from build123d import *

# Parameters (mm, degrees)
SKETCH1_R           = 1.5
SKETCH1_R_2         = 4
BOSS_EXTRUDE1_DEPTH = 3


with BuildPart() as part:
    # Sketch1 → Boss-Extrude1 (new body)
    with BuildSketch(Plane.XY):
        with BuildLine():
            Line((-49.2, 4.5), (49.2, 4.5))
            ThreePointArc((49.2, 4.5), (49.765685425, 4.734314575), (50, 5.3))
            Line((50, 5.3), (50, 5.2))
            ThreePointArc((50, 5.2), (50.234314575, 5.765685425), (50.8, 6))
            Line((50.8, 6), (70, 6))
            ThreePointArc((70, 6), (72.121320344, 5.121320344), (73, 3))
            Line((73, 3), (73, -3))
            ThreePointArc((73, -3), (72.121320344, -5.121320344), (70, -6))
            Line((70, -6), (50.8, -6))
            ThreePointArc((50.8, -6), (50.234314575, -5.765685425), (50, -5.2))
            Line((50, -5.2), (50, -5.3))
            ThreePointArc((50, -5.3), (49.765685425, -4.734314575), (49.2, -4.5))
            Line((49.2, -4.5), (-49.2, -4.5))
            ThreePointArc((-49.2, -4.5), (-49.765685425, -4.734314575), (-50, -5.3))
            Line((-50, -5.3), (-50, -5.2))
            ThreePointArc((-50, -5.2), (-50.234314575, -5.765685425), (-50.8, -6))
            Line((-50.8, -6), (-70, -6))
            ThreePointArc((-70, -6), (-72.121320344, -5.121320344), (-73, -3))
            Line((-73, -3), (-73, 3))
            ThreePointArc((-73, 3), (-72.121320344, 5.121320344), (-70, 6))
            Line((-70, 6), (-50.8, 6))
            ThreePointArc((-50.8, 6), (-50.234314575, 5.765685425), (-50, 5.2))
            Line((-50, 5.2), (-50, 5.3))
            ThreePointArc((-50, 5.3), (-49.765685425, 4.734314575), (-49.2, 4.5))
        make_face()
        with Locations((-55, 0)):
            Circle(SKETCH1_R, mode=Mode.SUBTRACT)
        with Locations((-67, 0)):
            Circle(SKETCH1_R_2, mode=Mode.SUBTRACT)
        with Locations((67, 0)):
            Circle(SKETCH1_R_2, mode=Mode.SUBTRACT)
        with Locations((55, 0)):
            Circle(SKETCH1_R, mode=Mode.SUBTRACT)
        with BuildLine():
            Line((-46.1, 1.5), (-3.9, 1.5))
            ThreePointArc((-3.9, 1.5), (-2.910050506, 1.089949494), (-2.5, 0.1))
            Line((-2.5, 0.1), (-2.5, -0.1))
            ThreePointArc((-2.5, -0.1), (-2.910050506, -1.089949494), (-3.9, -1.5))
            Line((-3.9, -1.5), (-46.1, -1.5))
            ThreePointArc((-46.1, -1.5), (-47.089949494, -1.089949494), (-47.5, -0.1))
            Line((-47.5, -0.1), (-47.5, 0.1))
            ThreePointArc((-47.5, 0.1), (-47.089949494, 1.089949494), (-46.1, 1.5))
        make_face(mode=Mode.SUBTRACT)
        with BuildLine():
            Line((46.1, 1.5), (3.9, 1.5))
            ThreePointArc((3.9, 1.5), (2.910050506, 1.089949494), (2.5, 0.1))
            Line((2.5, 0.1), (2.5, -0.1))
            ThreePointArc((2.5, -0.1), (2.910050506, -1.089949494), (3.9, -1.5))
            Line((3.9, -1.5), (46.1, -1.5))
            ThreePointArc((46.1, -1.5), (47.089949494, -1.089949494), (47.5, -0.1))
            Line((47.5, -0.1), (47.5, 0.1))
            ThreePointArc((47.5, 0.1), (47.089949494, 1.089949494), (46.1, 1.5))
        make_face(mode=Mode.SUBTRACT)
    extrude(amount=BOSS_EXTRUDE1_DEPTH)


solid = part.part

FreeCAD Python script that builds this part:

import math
import FreeCAD as App
import Part
import Sketcher

doc = App.newDocument("Part")
body = doc.addObject("PartDesign::Body", "Body")

# Sketch on XY plane
sketch1 = body.newObject("Sketcher::SketchObject", "Sketch")
sketch1.AttachmentSupport = (doc.getObject("XY_Plane"), [""])
sketch1.MapMode = "FlatFace"
sketch1.addGeometry(Part.LineSegment(App.Vector(49.2, 4.5, 0), App.Vector(-49.2, 4.5, 0)), False)
sketch1.addGeometry(Part.ArcOfCircle(Part.Circle(App.Vector(-49.2, 5.3, 0), App.Vector(0, 0, 1), 0.8), math.radians(180), math.radians(270)), False)
sketch1.addGeometry(Part.LineSegment(App.Vector(-50, 5.3, 0), App.Vector(-50, 5.2, 0)), False)
sketch1.addGeometry(Part.ArcOfCircle(Part.Circle(App.Vector(-50.8, 5.2, 0), App.Vector(0, 0, 1), 0.8), math.radians(0), math.radians(90)), False)
sketch1.addGeometry(Part.LineSegment(App.Vector(-50.8, 6, 0), App.Vector(-70, 6, 0)), False)
sketch1.addGeometry(Part.ArcOfCircle(Part.Circle(App.Vector(-70, 3, 0), App.Vector(0, 0, 1), 3), math.radians(90), math.radians(180)), False)
sketch1.addGeometry(Part.LineSegment(App.Vector(-73, 3, 0), App.Vector(-73, -3, 0)), False)
sketch1.addGeometry(Part.ArcOfCircle(Part.Circle(App.Vector(-70, -3, 0), App.Vector(0, 0, 1), 3), math.radians(180), math.radians(270)), False)
sketch1.addGeometry(Part.LineSegment(App.Vector(-70, -6, 0), App.Vector(-50.8, -6, 0)), False)
sketch1.addGeometry(Part.ArcOfCircle(Part.Circle(App.Vector(-50.8, -5.2, 0), App.Vector(0, 0, 1), 0.8), math.radians(-90), math.radians(0)), False)
sketch1.addGeometry(Part.LineSegment(App.Vector(-50, -5.2, 0), App.Vector(-50, -5.3, 0)), False)
sketch1.addGeometry(Part.ArcOfCircle(Part.Circle(App.Vector(-49.2, -5.3, 0), App.Vector(0, 0, 1), 0.8), math.radians(90), math.radians(180)), False)
sketch1.addGeometry(Part.LineSegment(App.Vector(-49.2, -4.5, 0), App.Vector(49.2, -4.5, 0)), False)
sketch1.addGeometry(Part.ArcOfCircle(Part.Circle(App.Vector(49.2, -5.3, 0), App.Vector(0, 0, 1), 0.8), math.radians(0), math.radians(90)), False)
sketch1.addGeometry(Part.LineSegment(App.Vector(50, -5.3, 0), App.Vector(50, -5.2, 0)), False)
sketch1.addGeometry(Part.ArcOfCircle(Part.Circle(App.Vector(50.8, -5.2, 0), App.Vector(0, 0, 1), 0.8), math.radians(180), math.radians(270)), False)
sketch1.addGeometry(Part.LineSegment(App.Vector(50.8, -6, 0), App.Vector(70, -6, 0)), False)
sketch1.addGeometry(Part.ArcOfCircle(Part.Circle(App.Vector(70, -3, 0), App.Vector(0, 0, 1), 3), math.radians(-90), math.radians(0)), False)
sketch1.addGeometry(Part.LineSegment(App.Vector(73, -3, 0), App.Vector(73, 3, 0)), False)
sketch1.addGeometry(Part.ArcOfCircle(Part.Circle(App.Vector(70, 3, 0), App.Vector(0, 0, 1), 3), math.radians(0), math.radians(90)), False)
sketch1.addGeometry(Part.LineSegment(App.Vector(70, 6, 0), App.Vector(50.8, 6, 0)), False)
sketch1.addGeometry(Part.ArcOfCircle(Part.Circle(App.Vector(50.8, 5.2, 0), App.Vector(0, 0, 1), 0.8), math.radians(90), math.radians(180)), False)
sketch1.addGeometry(Part.LineSegment(App.Vector(50, 5.2, 0), App.Vector(50, 5.3, 0)), False)
sketch1.addGeometry(Part.ArcOfCircle(Part.Circle(App.Vector(49.2, 5.3, 0), App.Vector(0, 0, 1), 0.8), math.radians(-90), math.radians(0)), False)
sketch1.addGeometry(Part.Circle(App.Vector(67, 0, 0), App.Vector(0, 0, 1), 4), False)
sketch1.addGeometry(Part.Circle(App.Vector(55, 0, 0), App.Vector(0, 0, 1), 1.5), False)
sketch1.addGeometry(Part.ArcOfCircle(Part.Circle(App.Vector(46.1, 0.1, 0), App.Vector(0, 0, 1), 1.4), math.radians(0), math.radians(90)), False)
sketch1.addGeometry(Part.LineSegment(App.Vector(47.5, 0.1, 0), App.Vector(47.5, -0.1, 0)), False)
sketch1.addGeometry(Part.ArcOfCircle(Part.Circle(App.Vector(46.1, -0.1, 0), App.Vector(0, 0, 1), 1.4), math.radians(-90), math.radians(0)), False)
sketch1.addGeometry(Part.LineSegment(App.Vector(46.1, -1.5, 0), App.Vector(3.9, -1.5, 0)), False)
sketch1.addGeometry(Part.ArcOfCircle(Part.Circle(App.Vector(3.9, -0.1, 0), App.Vector(0, 0, 1), 1.4), math.radians(180), math.radians(270)), False)
sketch1.addGeometry(Part.LineSegment(App.Vector(2.5, -0.1, 0), App.Vector(2.5, 0.1, 0)), False)
sketch1.addGeometry(Part.ArcOfCircle(Part.Circle(App.Vector(3.9, 0.1, 0), App.Vector(0, 0, 1), 1.4), math.radians(90), math.radians(180)), False)
sketch1.addGeometry(Part.LineSegment(App.Vector(3.9, 1.5, 0), App.Vector(46.1, 1.5, 0)), False)
sketch1.addGeometry(Part.LineSegment(App.Vector(-46.1, 1.5, 0), App.Vector(-3.9, 1.5, 0)), False)
sketch1.addGeometry(Part.ArcOfCircle(Part.Circle(App.Vector(-3.9, 0.1, 0), App.Vector(0, 0, 1), 1.4), math.radians(0), math.radians(90)), False)
sketch1.addGeometry(Part.LineSegment(App.Vector(-2.5, 0.1, 0), App.Vector(-2.5, -0.1, 0)), False)
sketch1.addGeometry(Part.ArcOfCircle(Part.Circle(App.Vector(-3.9, -0.1, 0), App.Vector(0, 0, 1), 1.4), math.radians(-90), math.radians(0)), False)
sketch1.addGeometry(Part.LineSegment(App.Vector(-3.9, -1.5, 0), App.Vector(-46.1, -1.5, 0)), False)
sketch1.addGeometry(Part.ArcOfCircle(Part.Circle(App.Vector(-46.1, -0.1, 0), App.Vector(0, 0, 1), 1.4), math.radians(180), math.radians(270)), False)
sketch1.addGeometry(Part.LineSegment(App.Vector(-47.5, -0.1, 0), App.Vector(-47.5, 0.1, 0)), False)
sketch1.addGeometry(Part.ArcOfCircle(Part.Circle(App.Vector(-46.1, 0.1, 0), App.Vector(0, 0, 1), 1.4), math.radians(90), math.radians(180)), False)
sketch1.addGeometry(Part.Circle(App.Vector(-55, 0, 0), App.Vector(0, 0, 1), 1.5), False)
sketch1.addGeometry(Part.Circle(App.Vector(-67, 0, 0), App.Vector(0, 0, 1), 4), False)
sketch1.addConstraint(Sketcher.Constraint("Tangent", 0, 2, 1, 2))
sketch1.addConstraint(Sketcher.Constraint("Tangent", 1, 1, 2, 1))
sketch1.addConstraint(Sketcher.Constraint("Tangent", 2, 2, 3, 1))
sketch1.addConstraint(Sketcher.Constraint("Tangent", 3, 2, 4, 1))
sketch1.addConstraint(Sketcher.Constraint("Tangent", 4, 2, 5, 1))
sketch1.addConstraint(Sketcher.Constraint("Tangent", 5, 2, 6, 1))
sketch1.addConstraint(Sketcher.Constraint("Tangent", 6, 2, 7, 1))
sketch1.addConstraint(Sketcher.Constraint("Tangent", 7, 2, 8, 1))
sketch1.addConstraint(Sketcher.Constraint("Tangent", 8, 2, 9, 1))
sketch1.addConstraint(Sketcher.Constraint("Tangent", 9, 2, 10, 1))
sketch1.addConstraint(Sketcher.Constraint("Tangent", 10, 2, 11, 2))
sketch1.addConstraint(Sketcher.Constraint("Tangent", 11, 1, 12, 1))
sketch1.addConstraint(Sketcher.Constraint("Tangent", 12, 2, 13, 2))
sketch1.addConstraint(Sketcher.Constraint("Tangent", 13, 1, 14, 1))
sketch1.addConstraint(Sketcher.Constraint("Tangent", 14, 2, 15, 1))
sketch1.addConstraint(Sketcher.Constraint("Tangent", 15, 2, 16, 1))
sketch1.addConstraint(Sketcher.Constraint("Tangent", 16, 2, 17, 1))
sketch1.addConstraint(Sketcher.Constraint("Tangent", 17, 2, 18, 1))
sketch1.addConstraint(Sketcher.Constraint("Tangent", 18, 2, 19, 1))
sketch1.addConstraint(Sketcher.Constraint("Tangent", 19, 2, 20, 1))
sketch1.addConstraint(Sketcher.Constraint("Tangent", 20, 2, 21, 1))
sketch1.addConstraint(Sketcher.Constraint("Tangent", 21, 2, 22, 1))
sketch1.addConstraint(Sketcher.Constraint("Tangent", 22, 2, 23, 2))
sketch1.addConstraint(Sketcher.Constraint("Tangent", 23, 1, 0, 1))
sketch1.addConstraint(Sketcher.Constraint("Tangent", 26, 1, 27, 1))
sketch1.addConstraint(Sketcher.Constraint("Tangent", 27, 2, 28, 2))
sketch1.addConstraint(Sketcher.Constraint("Tangent", 28, 1, 29, 1))
sketch1.addConstraint(Sketcher.Constraint("Tangent", 29, 2, 30, 2))
sketch1.addConstraint(Sketcher.Constraint("Tangent", 30, 1, 31, 1))
sketch1.addConstraint(Sketcher.Constraint("Tangent", 31, 2, 32, 2))
sketch1.addConstraint(Sketcher.Constraint("Tangent", 32, 1, 33, 1))
sketch1.addConstraint(Sketcher.Constraint("Tangent", 33, 2, 26, 2))
sketch1.addConstraint(Sketcher.Constraint("Tangent", 34, 2, 35, 2))
sketch1.addConstraint(Sketcher.Constraint("Tangent", 35, 1, 36, 1))
sketch1.addConstraint(Sketcher.Constraint("Tangent", 36, 2, 37, 2))
sketch1.addConstraint(Sketcher.Constraint("Tangent", 37, 1, 38, 1))
sketch1.addConstraint(Sketcher.Constraint("Tangent", 38, 2, 39, 2))
sketch1.addConstraint(Sketcher.Constraint("Tangent", 39, 1, 40, 1))
sketch1.addConstraint(Sketcher.Constraint("Tangent", 40, 2, 41, 2))
sketch1.addConstraint(Sketcher.Constraint("Tangent", 41, 1, 34, 1))
sketch1.addConstraint(Sketcher.Constraint("Horizontal", 0))
sketch1.addConstraint(Sketcher.Constraint("Vertical", 2))
sketch1.addConstraint(Sketcher.Constraint("Horizontal", 4))
sketch1.addConstraint(Sketcher.Constraint("Vertical", 6))
sketch1.addConstraint(Sketcher.Constraint("Horizontal", 8))
sketch1.addConstraint(Sketcher.Constraint("Vertical", 10))
sketch1.addConstraint(Sketcher.Constraint("Horizontal", 12))
sketch1.addConstraint(Sketcher.Constraint("Vertical", 14))
sketch1.addConstraint(Sketcher.Constraint("Horizontal", 16))
sketch1.addConstraint(Sketcher.Constraint("Vertical", 18))
sketch1.addConstraint(Sketcher.Constraint("Horizontal", 20))
sketch1.addConstraint(Sketcher.Constraint("Vertical", 22))
sketch1.addConstraint(Sketcher.Constraint("Vertical", 27))
sketch1.addConstraint(Sketcher.Constraint("Horizontal", 29))
sketch1.addConstraint(Sketcher.Constraint("Vertical", 31))
sketch1.addConstraint(Sketcher.Constraint("Horizontal", 33))
sketch1.addConstraint(Sketcher.Constraint("Horizontal", 34))
sketch1.addConstraint(Sketcher.Constraint("Vertical", 36))
sketch1.addConstraint(Sketcher.Constraint("Horizontal", 38))
sketch1.addConstraint(Sketcher.Constraint("Vertical", 40))
sketch1.addConstraint(Sketcher.Constraint("Equal", 1, 3))
sketch1.addConstraint(Sketcher.Constraint("Equal", 5, 7))
sketch1.addConstraint(Sketcher.Constraint("Equal", 3, 9))
sketch1.addConstraint(Sketcher.Constraint("Equal", 9, 11))
sketch1.addConstraint(Sketcher.Constraint("Equal", 11, 13))
sketch1.addConstraint(Sketcher.Constraint("Equal", 13, 15))
sketch1.addConstraint(Sketcher.Constraint("Equal", 7, 17))
sketch1.addConstraint(Sketcher.Constraint("Equal", 17, 19))
sketch1.addConstraint(Sketcher.Constraint("Equal", 15, 21))
sketch1.addConstraint(Sketcher.Constraint("Equal", 21, 23))
sketch1.addConstraint(Sketcher.Constraint("Equal", 26, 28))
sketch1.addConstraint(Sketcher.Constraint("Equal", 28, 30))
sketch1.addConstraint(Sketcher.Constraint("Equal", 30, 32))
sketch1.addConstraint(Sketcher.Constraint("Equal", 32, 35))
sketch1.addConstraint(Sketcher.Constraint("Equal", 35, 37))
sketch1.addConstraint(Sketcher.Constraint("Equal", 37, 39))
sketch1.addConstraint(Sketcher.Constraint("Equal", 39, 41))
sketch1.addConstraint(Sketcher.Constraint("Equal", 25, 42))
sketch1.addConstraint(Sketcher.Constraint("Equal", 24, 43))
sketch1.addConstraint(Sketcher.Constraint("Symmetric", 1, 3, 13, 3, -1, 1))
sketch1.addConstraint(Sketcher.Constraint("Symmetric", 5, 3, 17, 3, -1, 1))
sketch1.addConstraint(Sketcher.Constraint("Symmetric", 9, 3, 21, 3, -1, 1))
sketch1.addConstraint(Sketcher.Constraint("Symmetric", 30, 3, 35, 3, -1, 1))
sketch1.addConstraint(Sketcher.Constraint("Symmetric", 26, 3, 39, 3, -1, 1))
sketch1.addConstraint(Sketcher.Constraint("Symmetric", 25, 3, 42, 3, -1, 1))
sketch1.addConstraint(Sketcher.Constraint("Symmetric", 24, 3, 43, 3, -1, 1))
sketch1.addConstraint(Sketcher.Constraint("Symmetric", 9, 3, 15, 3, -2))
sketch1.addConstraint(Sketcher.Constraint("PointOnObject", 24, 3, -1))
sketch1.addConstraint(Sketcher.Constraint("PointOnObject", 25, 3, -1))
sketch1.addConstraint(Sketcher.Constraint("Horizontal", 32, 3, 35, 3))
sketch1.addConstraint(Sketcher.Constraint("Diameter", 24, 8.0))
sketch1.addConstraint(Sketcher.Constraint("Diameter", 25, 3.0))
sketch1.addConstraint(Sketcher.Constraint("Radius", 5, 3.0))
sketch1.addConstraint(Sketcher.Constraint("Radius", 1, 0.8))
sketch1.addConstraint(Sketcher.Constraint("Radius", 26, 1.4))
sketch1.addConstraint(Sketcher.Constraint("DistanceY", 6, 2, 6, 1, 6.0))
sketch1.addConstraint(Sketcher.Constraint("DistanceX", 0, 2, 0, 1, 98.4))
sketch1.addConstraint(Sketcher.Constraint("DistanceX", 4, 2, 4, 1, 19.2))
sketch1.addConstraint(Sketcher.Constraint("DistanceX", 29, 2, 29, 1, 42.2))
sketch1.addConstraint(Sketcher.Constraint("DistanceY", 2, 2, 2, 1, 0.1))
sketch1.addConstraint(Sketcher.Constraint("DistanceY", 27, 2, 27, 1, 0.2))
sketch1.addConstraint(Sketcher.Constraint("DistanceX", -1, 1, 24, 3, 67.0))
sketch1.addConstraint(Sketcher.Constraint("DistanceX", -1, 1, 25, 3, 55.0))
sketch1.addConstraint(Sketcher.Constraint("DistanceX", -1, 1, 26, 3, 46.1))
pad1 = body.newObject("PartDesign::Pad", "Pad")
pad1.Profile = sketch1
pad1.Length = 3

doc.recompute()
